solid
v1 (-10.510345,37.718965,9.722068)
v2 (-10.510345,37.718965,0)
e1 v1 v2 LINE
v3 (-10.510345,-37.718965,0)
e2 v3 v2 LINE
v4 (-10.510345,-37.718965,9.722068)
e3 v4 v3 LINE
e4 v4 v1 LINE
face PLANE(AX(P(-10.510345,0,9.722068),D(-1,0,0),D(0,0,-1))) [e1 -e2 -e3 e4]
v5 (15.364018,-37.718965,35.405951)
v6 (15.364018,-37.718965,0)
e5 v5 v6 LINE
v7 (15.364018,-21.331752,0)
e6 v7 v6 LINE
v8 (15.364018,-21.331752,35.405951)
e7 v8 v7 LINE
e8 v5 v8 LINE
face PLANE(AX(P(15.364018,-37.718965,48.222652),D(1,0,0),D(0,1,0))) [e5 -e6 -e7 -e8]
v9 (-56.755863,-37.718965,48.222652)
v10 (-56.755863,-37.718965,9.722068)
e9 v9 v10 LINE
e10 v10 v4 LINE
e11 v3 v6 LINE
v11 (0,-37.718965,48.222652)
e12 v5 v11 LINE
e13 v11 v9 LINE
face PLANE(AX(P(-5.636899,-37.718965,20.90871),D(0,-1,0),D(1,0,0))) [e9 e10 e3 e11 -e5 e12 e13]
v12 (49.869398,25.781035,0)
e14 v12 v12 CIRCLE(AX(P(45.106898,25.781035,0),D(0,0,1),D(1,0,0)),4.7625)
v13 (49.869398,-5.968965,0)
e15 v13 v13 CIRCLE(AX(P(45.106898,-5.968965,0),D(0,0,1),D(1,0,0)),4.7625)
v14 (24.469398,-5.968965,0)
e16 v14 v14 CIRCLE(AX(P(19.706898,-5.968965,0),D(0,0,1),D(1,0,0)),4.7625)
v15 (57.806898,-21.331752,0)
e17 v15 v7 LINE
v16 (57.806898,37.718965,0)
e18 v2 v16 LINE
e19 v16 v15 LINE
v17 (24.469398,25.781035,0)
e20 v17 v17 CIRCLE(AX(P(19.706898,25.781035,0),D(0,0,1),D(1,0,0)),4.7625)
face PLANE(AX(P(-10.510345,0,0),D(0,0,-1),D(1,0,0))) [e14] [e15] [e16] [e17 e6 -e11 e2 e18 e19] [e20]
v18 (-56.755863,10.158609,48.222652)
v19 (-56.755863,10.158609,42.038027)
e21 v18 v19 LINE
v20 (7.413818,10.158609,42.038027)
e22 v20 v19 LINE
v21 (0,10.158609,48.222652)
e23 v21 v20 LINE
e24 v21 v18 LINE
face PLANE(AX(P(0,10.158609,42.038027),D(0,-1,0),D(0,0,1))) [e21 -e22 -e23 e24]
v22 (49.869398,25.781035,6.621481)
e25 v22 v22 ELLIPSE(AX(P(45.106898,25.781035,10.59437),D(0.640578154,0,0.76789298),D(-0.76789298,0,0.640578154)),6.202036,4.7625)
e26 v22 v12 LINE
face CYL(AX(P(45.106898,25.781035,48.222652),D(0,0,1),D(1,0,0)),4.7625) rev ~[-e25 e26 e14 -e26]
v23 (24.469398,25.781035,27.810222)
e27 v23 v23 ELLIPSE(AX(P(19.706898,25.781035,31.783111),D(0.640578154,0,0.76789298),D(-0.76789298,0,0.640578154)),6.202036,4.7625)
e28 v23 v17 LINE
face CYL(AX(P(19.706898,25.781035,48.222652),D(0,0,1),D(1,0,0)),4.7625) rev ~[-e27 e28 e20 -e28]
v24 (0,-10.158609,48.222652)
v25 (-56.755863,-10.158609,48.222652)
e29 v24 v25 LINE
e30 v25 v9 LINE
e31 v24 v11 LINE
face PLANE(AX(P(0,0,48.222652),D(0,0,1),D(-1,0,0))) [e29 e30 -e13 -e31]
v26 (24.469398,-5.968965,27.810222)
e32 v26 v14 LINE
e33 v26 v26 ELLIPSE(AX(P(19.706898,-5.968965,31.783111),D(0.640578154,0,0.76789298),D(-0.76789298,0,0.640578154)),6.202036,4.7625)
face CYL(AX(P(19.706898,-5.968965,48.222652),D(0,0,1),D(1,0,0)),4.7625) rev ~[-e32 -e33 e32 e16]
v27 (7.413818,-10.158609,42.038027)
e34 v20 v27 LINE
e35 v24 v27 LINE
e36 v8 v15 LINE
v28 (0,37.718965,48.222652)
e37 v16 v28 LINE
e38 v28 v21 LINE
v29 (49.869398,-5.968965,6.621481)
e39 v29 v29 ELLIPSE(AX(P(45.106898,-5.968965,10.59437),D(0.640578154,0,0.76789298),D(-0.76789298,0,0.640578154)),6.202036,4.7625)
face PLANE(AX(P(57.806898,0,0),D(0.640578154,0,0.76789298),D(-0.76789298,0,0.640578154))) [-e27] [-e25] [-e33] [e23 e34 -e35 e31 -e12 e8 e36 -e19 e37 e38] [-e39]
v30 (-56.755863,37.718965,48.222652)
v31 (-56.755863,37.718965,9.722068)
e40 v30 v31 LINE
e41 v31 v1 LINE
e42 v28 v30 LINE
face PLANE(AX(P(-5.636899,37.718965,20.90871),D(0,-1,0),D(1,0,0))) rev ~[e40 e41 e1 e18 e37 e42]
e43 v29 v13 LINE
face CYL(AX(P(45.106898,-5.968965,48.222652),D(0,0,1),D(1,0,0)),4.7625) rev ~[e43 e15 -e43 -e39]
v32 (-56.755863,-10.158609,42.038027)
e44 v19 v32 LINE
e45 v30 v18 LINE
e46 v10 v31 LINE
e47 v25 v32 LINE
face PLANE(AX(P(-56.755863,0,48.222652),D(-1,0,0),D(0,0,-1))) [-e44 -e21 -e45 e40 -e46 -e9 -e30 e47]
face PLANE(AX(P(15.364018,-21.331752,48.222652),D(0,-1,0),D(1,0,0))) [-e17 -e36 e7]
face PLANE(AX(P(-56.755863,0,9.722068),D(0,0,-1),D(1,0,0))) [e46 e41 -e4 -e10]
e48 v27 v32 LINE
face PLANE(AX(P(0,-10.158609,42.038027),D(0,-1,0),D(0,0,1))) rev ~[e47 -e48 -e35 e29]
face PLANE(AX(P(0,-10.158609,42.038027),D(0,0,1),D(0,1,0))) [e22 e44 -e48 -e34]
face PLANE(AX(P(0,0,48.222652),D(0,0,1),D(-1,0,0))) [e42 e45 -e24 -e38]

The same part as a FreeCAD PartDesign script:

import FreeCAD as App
import Part
import Sketcher
Q = App.Units.Quantity

doc = App.newDocument("Part")
body = doc.addObject("PartDesign::Body", "Body")

sketch1 = body.newObject("Sketcher::SketchObject", "Sketch")
sketch1.AttachmentSupport = (doc.getObject("XZ_Plane"), [""])
sketch1.MapMode = "FlatFace"
sketch1.addGeometry(Part.LineSegment(App.Vector(-11, 0, 0), App.Vector(58, 0, 0)), False)
sketch1.addGeometry(Part.LineSegment(App.Vector(58, 0, 0), App.Vector(0, 48, 0)), False)
sketch1.addGeometry(Part.LineSegment(App.Vector(0, 48, 0), App.Vector(-57, 48, 0)), False)
sketch1.addGeometry(Part.LineSegment(App.Vector(-57, 48, 0), App.Vector(-57, 10, 0)), False)
sketch1.addGeometry(Part.LineSegment(App.Vector(-57, 10, 0), App.Vector(-11, 10, 0)), False)
sketch1.addGeometry(Part.LineSegment(App.Vector(-11, 10, 0), App.Vector(-11, 0, 0)), False)
sketch1.addConstraint(Sketcher.Constraint("Coincident", 0, 2, 1, 1))
sketch1.addConstraint(Sketcher.Constraint("Coincident", 1, 2, 2, 1))
sketch1.addConstraint(Sketcher.Constraint("Coincident", 2, 2, 3, 1))
sketch1.addConstraint(Sketcher.Constraint("Coincident", 3, 2, 4, 1))
sketch1.addConstraint(Sketcher.Constraint("Coincident", 4, 2, 5, 1))
sketch1.addConstraint(Sketcher.Constraint("Coincident", 5, 2, 0, 1))
sketch1.addConstraint(Sketcher.Constraint("Horizontal", 0))
sketch1.addConstraint(Sketcher.Constraint("Horizontal", 2))
sketch1.addConstraint(Sketcher.Constraint("Vertical", 3))
sketch1.addConstraint(Sketcher.Constraint("Horizontal", 4))
sketch1.addConstraint(Sketcher.Constraint("Vertical", 5))
sketch1.addConstraint(Sketcher.Constraint("PointOnObject", 0, 2, -1))
sketch1.addConstraint(Sketcher.Constraint("PointOnObject", 1, 2, -2))
sketch1.addConstraint(Sketcher.Constraint("DistanceX", 4, 1, 4, 2, 46.245518))
sketch1.addConstraint(Sketcher.Constraint("DistanceY", 5, 2, 5, 1, 9.722068))
sketch1.addConstraint(Sketcher.Constraint("Distance", 1, 75.279889))
sketch1.addConstraint(Sketcher.Constraint("DistanceX", 0, 1, 0, 2, 68.317243))
sketch1.addConstraint(Sketcher.Constraint("DistanceX", 2, 2, 2, 1, 56.755863))
pad1 = body.newObject("PartDesign::Pad", "Pad")
pad1.Profile = sketch1
pad1.Length = 75.43793
pad1.Midplane = True

sketch2 = body.newObject("Sketcher::SketchObject", "Sketch001")
sketch2.AttachmentSupport = (doc.getObject("XY_Plane"), [""])
sketch2.MapMode = "FlatFace"
sketch2.AttachmentOffset = App.Placement(App.Vector(0, 0, 48.222652), App.Rotation())
sketch2.addGeometry(Part.LineSegment(App.Vector(15, -21, 0), App.Vector(15, -38, 0)), False)
sketch2.addGeometry(Part.LineSegment(App.Vector(15, -38, 0), App.Vector(58, -38, 0)), False)
sketch2.addGeometry(Part.LineSegment(App.Vector(58, -38, 0), App.Vector(58, -21, 0)), False)
sketch2.addGeometry(Part.LineSegment(App.Vector(58, -21, 0), App.Vector(15, -21, 0)), False)
sketch2.addConstraint(Sketcher.Constraint("Coincident", 0, 2, 1, 1))
sketch2.addConstraint(Sketcher.Constraint("Coincident", 1, 2, 2, 1))
sketch2.addConstraint(Sketcher.Constraint("Coincident", 2, 2, 3, 1))
sketch2.addConstraint(Sketcher.Constraint("Coincident", 3, 2, 0, 1))
sketch2.addConstraint(Sketcher.Constraint("Vertical", 0))
sketch2.addConstraint(Sketcher.Constraint("Horizontal", 1))
sketch2.addConstraint(Sketcher.Constraint("Vertical", 2))
sketch2.addConstraint(Sketcher.Constraint("Horizontal", 3))
sketch2.addConstraint(Sketcher.Constraint("DistanceX", 1, 1, 1, 2, 42.44288))
sketch2.addConstraint(Sketcher.Constraint("DistanceY", 0, 2, 0, 1, 16.387213))
sketch2.addConstraint(Sketcher.Constraint("DistanceX", -1, 1, 0, 2, 15.364018))
sketch2.addConstraint(Sketcher.Constraint("DistanceY", 2, 2, -1, 1, 21.331752))
pocket1 = body.newObject("PartDesign::Pocket", "Pocket")
pocket1.Profile = sketch2
pocket1.Type = "ThroughAll"

sketch3 = body.newObject("Sketcher::SketchObject", "Sketch002")
sketch3.AttachmentSupport = (doc.getObject("YZ_Plane"), [""])
sketch3.MapMode = "FlatFace"
sketch3.addGeometry(Part.LineSegment(App.Vector(-10, 48, 0), App.Vector(-10, 42, 0)), False)
sketch3.addGeometry(Part.LineSegment(App.Vector(-10, 42, 0), App.Vector(10, 42, 0)), False)
sketch3.addGeometry(Part.LineSegment(App.Vector(10, 42, 0), App.Vector(10, 48, 0)), False)
sketch3.addGeometry(Part.LineSegment(App.Vector(10, 48, 0), App.Vector(-10, 48, 0)), False)
sketch3.addConstraint(Sketcher.Constraint("Coincident", 0, 2, 1, 1))
sketch3.addConstraint(Sketcher.Constraint("Coincident", 1, 2, 2, 1))
sketch3.addConstraint(Sketcher.Constraint("Coincident", 2, 2, 3, 1))
sketch3.addConstraint(Sketcher.Constraint("Coincident", 3, 2, 0, 1))
sketch3.addConstraint(Sketcher.Constraint("Vertical", 0))
sketch3.addConstraint(Sketcher.Constraint("Horizontal", 1))
sketch3.addConstraint(Sketcher.Constraint("Vertical", 2))
sketch3.addConstraint(Sketcher.Constraint("Horizontal", 3))
sketch3.addConstraint(Sketcher.Constraint("DistanceX", 1, 1, 1, 2, 20.317217))
sketch3.addConstraint(Sketcher.Constraint("DistanceY", 0, 2, 0, 1, 6.184625))
sketch3.addConstraint(Sketcher.Constraint("DistanceX", 0, 2, -1, 1, 10.158609))
sketch3.addConstraint(Sketcher.Constraint("DistanceY", -1, 1, 0, 2, 42.038027))
pocket2 = body.newObject("PartDesign::Pocket", "Pocket001")
pocket2.Profile = sketch3
pocket2.Type = "ThroughAll"
pocket2.Midplane = True

sketch4 = body.newObject("Sketcher::SketchObject", "Sketch003")
sketch4.AttachmentSupport = (doc.getObject("XY_Plane"), [""])
sketch4.MapMode = "FlatFace"
sketch4.AttachmentOffset = App.Placement(App.Vector(0, 0, 48.222652), App.Rotation())
sketch4.addGeometry(Part.Circle(App.Vector(45.1, 25.8, 0), App.Vector(0, 0, 1), 4.8), False)
sketch4.addGeometry(Part.Circle(App.Vector(19.7, 25.8, 0), App.Vector(0, 0, 1), 4.8), False)
sketch4.addGeometry(Part.Circle(App.Vector(19.7, -6, 0), App.Vector(0, 0, 1), 4.8), False)
sketch4.addGeometry(Part.Circle(App.Vector(45.1, -6, 0), App.Vector(0, 0, 1), 4.8), False)
sketch4.addConstraint(Sketcher.Constraint("Equal", 0, 1))
sketch4.addConstraint(Sketcher.Constraint("Equal", 1, 2))
sketch4.addConstraint(Sketcher.Constraint("Equal", 2, 3))
sketch4.addConstraint(Sketcher.Constraint("Horizontal", 0, 3, 1, 3))
sketch4.addConstraint(Sketcher.Constraint("Horizontal", 2, 3, 3, 3))
sketch4.addConstraint(Sketcher.Constraint("Vertical", 1, 3, 2, 3))
sketch4.addConstraint(Sketcher.Constraint("Vertical", 0, 3, 3, 3))
sketch4.addConstraint(Sketcher.Constraint("Diameter", 0, Q("0.375 in")))
sketch4.addConstraint(Sketcher.Constraint("DistanceX", 1, 3, 0, 3, Q("1 in")))
sketch4.addConstraint(Sketcher.Constraint("DistanceY", 2, 3, 1, 3, Q("1.25 in")))
sketch4.addConstraint(Sketcher.Constraint("DistanceX", -1, 1, 0, 3, 45.106898))
sketch4.addConstraint(Sketcher.Constraint("DistanceY", -1, 1, 0, 3, 25.781035))
pocket3 = body.newObject("PartDesign::Pocket", "Pocket002")
pocket3.Profile = sketch4
pocket3.Type = "ThroughAll"

doc.recompute()
